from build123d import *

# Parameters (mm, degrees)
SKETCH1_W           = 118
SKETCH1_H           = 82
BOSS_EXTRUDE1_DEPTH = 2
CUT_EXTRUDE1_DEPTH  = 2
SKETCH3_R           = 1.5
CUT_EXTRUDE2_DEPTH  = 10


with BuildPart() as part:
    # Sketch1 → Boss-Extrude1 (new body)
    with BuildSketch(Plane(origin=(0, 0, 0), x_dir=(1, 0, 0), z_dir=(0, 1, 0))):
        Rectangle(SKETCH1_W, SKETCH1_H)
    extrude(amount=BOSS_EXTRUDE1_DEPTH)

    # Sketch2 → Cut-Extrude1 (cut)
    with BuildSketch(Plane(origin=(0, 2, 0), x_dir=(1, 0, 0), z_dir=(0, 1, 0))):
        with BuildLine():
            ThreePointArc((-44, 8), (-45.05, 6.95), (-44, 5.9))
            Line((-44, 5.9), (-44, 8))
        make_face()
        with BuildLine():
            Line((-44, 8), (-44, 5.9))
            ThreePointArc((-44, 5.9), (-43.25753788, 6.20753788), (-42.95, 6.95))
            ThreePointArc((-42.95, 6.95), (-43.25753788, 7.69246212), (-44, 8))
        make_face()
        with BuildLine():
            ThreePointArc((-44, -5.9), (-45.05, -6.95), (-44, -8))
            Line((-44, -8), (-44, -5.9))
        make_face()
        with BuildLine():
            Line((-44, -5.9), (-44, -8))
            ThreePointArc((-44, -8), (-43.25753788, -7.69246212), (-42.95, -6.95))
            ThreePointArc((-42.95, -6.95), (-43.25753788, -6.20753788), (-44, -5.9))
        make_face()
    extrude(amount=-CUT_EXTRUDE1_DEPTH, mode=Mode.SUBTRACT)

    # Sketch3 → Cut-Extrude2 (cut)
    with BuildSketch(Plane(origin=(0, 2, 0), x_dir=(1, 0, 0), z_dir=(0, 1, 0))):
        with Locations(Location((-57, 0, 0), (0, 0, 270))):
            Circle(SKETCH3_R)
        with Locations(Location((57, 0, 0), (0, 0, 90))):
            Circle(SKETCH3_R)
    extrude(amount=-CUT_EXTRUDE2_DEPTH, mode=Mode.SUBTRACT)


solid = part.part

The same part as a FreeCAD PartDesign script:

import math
import FreeCAD as App
import Part
import Sketcher
from FreeCAD import Vector

doc = App.newDocument("Part")
body = doc.addObject("PartDesign::Body", "Body")

# Sketch on XZ plane
sketch1 = body.newObject("Sketcher::SketchObject", "Sketch")
sketch1.AttachmentSupport = (doc.getObject("XZ_Plane"), [""])
sketch1.MapMode = "FlatFace"
sketch1.addGeometry([
    Part.LineSegment(Vector(-59, -41, 0), Vector(-59, 41, 0)),
    Part.LineSegment(Vector(-59, 41, 0), Vector(59, 41, 0)),
    Part.LineSegment(Vector(59, 41, 0), Vector(59, -41, 0)),
    Part.LineSegment(Vector(59, -41, 0), Vector(-59, -41, 0)),
], False)
sketch1.addConstraint([
    Sketcher.Constraint("Coincident", 0, 2, 1, 1),
    Sketcher.Constraint("Coincident", 1, 2, 2, 1),
    Sketcher.Constraint("Coincident", 2, 2, 3, 1),
    Sketcher.Constraint("Coincident", 3, 2, 0, 1),
    Sketcher.Constraint("Vertical", 0),
    Sketcher.Constraint("Horizontal", 1),
    Sketcher.Constraint("Vertical", 2),
    Sketcher.Constraint("Horizontal", 3),
    Sketcher.Constraint("Symmetric", 0, 2, 2, 2, -1, 1),
    Sketcher.Constraint("DistanceX", 1, 1, 1, 2, 118.0),
    Sketcher.Constraint("DistanceY", 0, 1, 0, 2, 82.0),
])
pad1 = body.newObject("PartDesign::Pad", "Pad")
pad1.Profile = sketch1
pad1.Length = 2
pad1.Reversed = True

# Sketch on XZ plane
sketch2 = body.newObject("Sketcher::SketchObject", "Sketch001")
sketch2.AttachmentSupport = (doc.getObject("XZ_Plane"), [""])
sketch2.MapMode = "FlatFace"
sketch2.AttachmentOffset = App.Placement(Vector(0, 0, -2), App.Rotation())
sketch2.addGeometry([
    Part.ArcOfCircle(Part.Circle(Vector(-44, -7, 0), Vector(0, 0, 1), 1.1), math.radians(90), math.radians(270)),  # 0
    Part.ArcOfCircle(Part.Circle(Vector(-44, -7, 0), Vector(0, 0, 1), 1.1), math.radians(0), math.radians(90)),  # 1
    Part.ArcOfCircle(Part.Circle(Vector(-44, -6.9, 0), Vector(0, 0, 1), 1.1), math.radians(-90), math.radians(0)),  # 2
    Part.ArcOfCircle(Part.Circle(Vector(-44, 7, 0), Vector(0, 0, 1), 1.1), math.radians(90), math.radians(270)),  # 3
    Part.ArcOfCircle(Part.Circle(Vector(-44, 6.9, 0), Vector(0, 0, 1), 1.1), math.radians(0), math.radians(90)),  # 4
    Part.ArcOfCircle(Part.Circle(Vector(-44, 7, 0), Vector(0, 0, 1), 1.1), math.radians(-90), math.radians(0)),  # 5
], False)
sketch2.addConstraint([
    Sketcher.Constraint("Tangent", 0, 1, 1, 2),
    Sketcher.Constraint("Tangent", 1, 1, 2, 2),
    Sketcher.Constraint("Tangent", 2, 1, 0, 2),
    Sketcher.Constraint("Tangent", 3, 1, 4, 2),
    Sketcher.Constraint("Tangent", 4, 1, 5, 2),
    Sketcher.Constraint("Tangent", 5, 1, 3, 2),
    Sketcher.Constraint("Equal", 2, 3),
    Sketcher.Constraint("Symmetric", 0, 3, 3, 3, -1),
    Sketcher.Constraint("Horizontal", 2, 3, 1, 1),
    Sketcher.Constraint("Horizontal", 5, 3, 4, 1),
    Sketcher.Constraint("Vertical", 5, 3, 0, 1),
    Sketcher.Constraint("Vertical", 0, 1, 2, 1),
    Sketcher.Constraint("Vertical", 2, 1, 3, 1),
    Sketcher.Constraint("Vertical", 3, 1, 5, 1),
    Sketcher.Constraint("Radius", 0, 1.05),
    Sketcher.Constraint("DistanceX", 0, 3, -1, 1, 44.0),
    Sketcher.Constraint("DistanceY", 2, 1, -1, 1, 8.0),
])
pocket1 = body.newObject("PartDesign::Pocket", "Pocket")
pocket1.Profile = sketch2
pocket1.Length = 2
pocket1.Reversed = True

# Sketch on XZ plane
sketch3 = body.newObject("Sketcher::SketchObject", "Sketch002")
sketch3.AttachmentSupport = (doc.getObject("XZ_Plane"), [""])
sketch3.MapMode = "FlatFace"
sketch3.AttachmentOffset = App.Placement(Vector(0, 0, -2), App.Rotation())
sketch3.addGeometry([
    Part.Circle(Vector(-57, 0, 0), Vector(0, 0, 1), 1.5),
    Part.Circle(Vector(57, 0, 0), Vector(0, 0, 1), 1.5),
], False)
sketch3.addConstraint([
    Sketcher.Constraint("Equal", 0, 1),
    Sketcher.Constraint("Symmetric", 0, 3, 1, 3, -1, 1),
    Sketcher.Constraint("PointOnObject", 0, 3, -1),
    Sketcher.Constraint("Diameter", 0, 3.0),
    Sketcher.Constraint("DistanceX", 0, 3, -1, 1, 57.0),
])
pocket2 = body.newObject("PartDesign::Pocket", "Pocket001")
pocket2.Profile = sketch3
pocket2.Length = 10
pocket2.Reversed = True

doc.recompute()
